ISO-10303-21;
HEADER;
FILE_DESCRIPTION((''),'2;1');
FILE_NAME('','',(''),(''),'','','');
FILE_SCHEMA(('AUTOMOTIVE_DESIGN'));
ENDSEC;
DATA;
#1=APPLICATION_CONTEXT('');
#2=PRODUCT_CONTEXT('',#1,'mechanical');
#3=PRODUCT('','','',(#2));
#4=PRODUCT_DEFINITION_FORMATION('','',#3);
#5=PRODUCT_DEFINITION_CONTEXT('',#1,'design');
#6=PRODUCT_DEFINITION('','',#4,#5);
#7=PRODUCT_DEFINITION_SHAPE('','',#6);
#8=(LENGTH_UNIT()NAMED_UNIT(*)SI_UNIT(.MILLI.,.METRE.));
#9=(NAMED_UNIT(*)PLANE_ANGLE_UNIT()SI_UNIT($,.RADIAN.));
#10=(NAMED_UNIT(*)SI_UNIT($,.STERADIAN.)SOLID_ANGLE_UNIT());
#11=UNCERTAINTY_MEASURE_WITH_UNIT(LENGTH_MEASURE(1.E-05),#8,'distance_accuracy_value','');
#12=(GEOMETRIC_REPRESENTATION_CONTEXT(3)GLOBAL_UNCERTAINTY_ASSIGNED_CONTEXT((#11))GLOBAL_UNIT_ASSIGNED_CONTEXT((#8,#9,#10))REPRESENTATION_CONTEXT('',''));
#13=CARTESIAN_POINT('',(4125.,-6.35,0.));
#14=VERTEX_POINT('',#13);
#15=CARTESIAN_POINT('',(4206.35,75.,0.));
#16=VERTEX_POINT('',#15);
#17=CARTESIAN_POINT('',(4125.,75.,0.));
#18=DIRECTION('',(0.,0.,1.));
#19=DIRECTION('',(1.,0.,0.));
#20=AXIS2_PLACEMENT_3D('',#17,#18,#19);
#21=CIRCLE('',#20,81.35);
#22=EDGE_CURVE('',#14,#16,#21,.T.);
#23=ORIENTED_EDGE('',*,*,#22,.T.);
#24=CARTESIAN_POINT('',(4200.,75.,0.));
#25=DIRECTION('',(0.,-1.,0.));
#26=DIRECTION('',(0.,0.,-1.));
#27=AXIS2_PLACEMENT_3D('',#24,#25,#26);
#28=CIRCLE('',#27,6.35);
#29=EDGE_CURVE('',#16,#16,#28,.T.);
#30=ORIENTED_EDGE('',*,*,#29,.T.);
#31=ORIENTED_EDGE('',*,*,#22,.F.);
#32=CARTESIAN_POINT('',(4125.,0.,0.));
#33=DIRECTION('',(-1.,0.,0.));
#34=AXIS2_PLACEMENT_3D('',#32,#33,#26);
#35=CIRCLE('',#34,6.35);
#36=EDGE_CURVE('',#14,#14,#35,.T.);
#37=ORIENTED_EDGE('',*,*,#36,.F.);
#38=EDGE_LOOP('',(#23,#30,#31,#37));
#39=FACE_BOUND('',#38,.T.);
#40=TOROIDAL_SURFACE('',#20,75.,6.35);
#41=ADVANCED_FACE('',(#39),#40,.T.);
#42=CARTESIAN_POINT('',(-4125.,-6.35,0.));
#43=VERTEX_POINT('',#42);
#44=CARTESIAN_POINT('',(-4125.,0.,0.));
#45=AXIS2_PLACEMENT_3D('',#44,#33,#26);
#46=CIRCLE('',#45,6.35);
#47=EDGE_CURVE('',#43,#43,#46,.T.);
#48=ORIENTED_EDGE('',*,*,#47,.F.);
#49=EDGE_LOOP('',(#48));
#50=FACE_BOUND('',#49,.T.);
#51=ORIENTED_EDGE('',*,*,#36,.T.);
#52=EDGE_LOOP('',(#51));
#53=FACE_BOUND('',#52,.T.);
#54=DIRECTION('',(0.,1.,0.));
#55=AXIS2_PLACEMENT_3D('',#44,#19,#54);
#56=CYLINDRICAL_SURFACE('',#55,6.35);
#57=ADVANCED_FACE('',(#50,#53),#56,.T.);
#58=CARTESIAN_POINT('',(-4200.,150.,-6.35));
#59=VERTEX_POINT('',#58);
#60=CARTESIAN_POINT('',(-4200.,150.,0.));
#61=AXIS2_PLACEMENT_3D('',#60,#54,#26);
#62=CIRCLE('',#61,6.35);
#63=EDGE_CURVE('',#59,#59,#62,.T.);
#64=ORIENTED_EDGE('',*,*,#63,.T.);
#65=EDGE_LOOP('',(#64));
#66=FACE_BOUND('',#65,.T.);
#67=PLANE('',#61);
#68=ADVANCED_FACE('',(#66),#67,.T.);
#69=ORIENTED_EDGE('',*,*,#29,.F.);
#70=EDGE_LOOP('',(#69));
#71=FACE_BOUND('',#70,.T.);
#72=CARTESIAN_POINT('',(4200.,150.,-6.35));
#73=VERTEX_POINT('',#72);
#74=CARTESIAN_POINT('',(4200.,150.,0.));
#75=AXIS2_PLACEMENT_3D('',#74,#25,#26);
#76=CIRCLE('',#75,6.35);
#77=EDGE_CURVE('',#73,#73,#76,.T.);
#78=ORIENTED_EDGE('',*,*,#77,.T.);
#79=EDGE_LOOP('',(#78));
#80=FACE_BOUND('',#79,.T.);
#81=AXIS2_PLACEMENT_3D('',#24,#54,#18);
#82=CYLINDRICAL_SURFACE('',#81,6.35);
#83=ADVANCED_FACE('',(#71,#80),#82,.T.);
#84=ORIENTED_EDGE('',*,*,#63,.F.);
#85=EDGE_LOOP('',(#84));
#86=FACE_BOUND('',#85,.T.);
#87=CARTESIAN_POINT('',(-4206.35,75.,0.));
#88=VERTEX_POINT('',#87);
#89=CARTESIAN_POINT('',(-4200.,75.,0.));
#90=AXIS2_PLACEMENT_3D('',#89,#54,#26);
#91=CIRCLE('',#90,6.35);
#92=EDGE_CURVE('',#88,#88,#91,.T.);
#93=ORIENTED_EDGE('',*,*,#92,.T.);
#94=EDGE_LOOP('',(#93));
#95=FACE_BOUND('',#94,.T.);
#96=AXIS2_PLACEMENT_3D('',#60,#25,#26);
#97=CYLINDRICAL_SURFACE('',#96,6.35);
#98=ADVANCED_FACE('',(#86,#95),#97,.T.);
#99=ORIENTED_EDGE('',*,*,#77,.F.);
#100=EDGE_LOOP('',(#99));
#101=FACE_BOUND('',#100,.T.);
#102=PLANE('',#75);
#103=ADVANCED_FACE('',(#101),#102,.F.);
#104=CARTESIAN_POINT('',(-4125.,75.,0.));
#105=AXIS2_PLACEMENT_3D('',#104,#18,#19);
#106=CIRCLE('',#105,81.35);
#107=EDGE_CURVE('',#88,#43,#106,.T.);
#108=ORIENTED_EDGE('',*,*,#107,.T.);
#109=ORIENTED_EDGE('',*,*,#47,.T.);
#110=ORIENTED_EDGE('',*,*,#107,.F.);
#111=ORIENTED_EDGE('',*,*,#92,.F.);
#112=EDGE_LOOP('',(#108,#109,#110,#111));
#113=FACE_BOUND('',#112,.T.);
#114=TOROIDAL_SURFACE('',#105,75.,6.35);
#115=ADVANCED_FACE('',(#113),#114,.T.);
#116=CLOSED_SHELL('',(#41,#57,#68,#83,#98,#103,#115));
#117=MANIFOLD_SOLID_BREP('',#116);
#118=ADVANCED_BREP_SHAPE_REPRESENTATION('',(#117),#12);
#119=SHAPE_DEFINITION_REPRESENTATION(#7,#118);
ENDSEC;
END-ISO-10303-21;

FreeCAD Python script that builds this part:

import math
import FreeCAD as App
import Part
import Sketcher
from FreeCAD import Vector

doc = App.newDocument("Part")
body = doc.addObject("PartDesign::Body", "Body")

# Sketch on XZ plane
sketch1 = doc.addObject("Sketcher::SketchObject", "Sketch")
body.addObject(sketch1)
sketch1.AttachmentSupport = (doc.XZ_Plane, [""])
sketch1.MapMode = "FlatFace"
sketch1.AttachmentOffset = App.Placement(Vector(0, 0, -150), App.Rotation())
sketch1.addGeometry(Part.Circle(Vector(-4200, 0, 0), Vector(0, 0, 1), 6), False)
sketch1.addConstraint([
    Sketcher.Constraint("PointOnObject", 0, 3, -1),
    Sketcher.Constraint("Diameter", 0, 12.7),
    Sketcher.Constraint("DistanceX", 0, 3, -1, 1, 4200.0),
])

# Sketch on XY plane
sketch2 = doc.addObject("Sketcher::SketchObject", "Sketch001")
body.addObject(sketch2)
sketch2.AttachmentSupport = (doc.XY_Plane, [""])
sketch2.MapMode = "FlatFace"
sketch2.addGeometry([
    Part.LineSegment(Vector(-4200, 150, 0), Vector(-4200, 75, 0)),  # 0
    Part.ArcOfCircle(Part.Circle(Vector(-4125, 75, 0), Vector(0, 0, 1), 75), math.radians(180), math.radians(270)),  # 1
    Part.LineSegment(Vector(-4125, 0, 0), Vector(4125, 0, 0)),  # 2
    Part.ArcOfCircle(Part.Circle(Vector(4125, 75, 0), Vector(0, 0, 1), 75), math.radians(-90), math.radians(0)),  # 3
    Part.LineSegment(Vector(4200, 75, 0), Vector(4200, 150, 0)),  # 4
], False)
sketch2.addConstraint([
    Sketcher.Constraint("Tangent", 0, 2, 1, 1),
    Sketcher.Constraint("Tangent", 1, 2, 2, 1),
    Sketcher.Constraint("Tangent", 2, 2, 3, 1),
    Sketcher.Constraint("Tangent", 3, 2, 4, 1),
    Sketcher.Constraint("Vertical", 0),
    Sketcher.Constraint("Horizontal", 2),
    Sketcher.Constraint("Vertical", 4),
    Sketcher.Constraint("Equal", 1, 3),
    Sketcher.Constraint("Symmetric", 1, 2, 2, 2, -1, 1),
    Sketcher.Constraint("Horizontal", 0, 1, 4, 2),
    Sketcher.Constraint("Radius", 1, 75.0),
    Sketcher.Constraint("DistanceX", 2, 1, 2, 2, 8250.0),
    Sketcher.Constraint("DistanceY", 0, 2, 0, 1, 75.0),
])
doc.recompute()

additivepipe = doc.addObject("PartDesign::AdditivePipe", "AdditivePipe")
body.addObject(additivepipe)
additivepipe.Profile = sketch1
additivepipe.Spine = (sketch2, ["Edge1", "Edge2", "Edge3", "Edge4", "Edge5"])

doc.recompute()
